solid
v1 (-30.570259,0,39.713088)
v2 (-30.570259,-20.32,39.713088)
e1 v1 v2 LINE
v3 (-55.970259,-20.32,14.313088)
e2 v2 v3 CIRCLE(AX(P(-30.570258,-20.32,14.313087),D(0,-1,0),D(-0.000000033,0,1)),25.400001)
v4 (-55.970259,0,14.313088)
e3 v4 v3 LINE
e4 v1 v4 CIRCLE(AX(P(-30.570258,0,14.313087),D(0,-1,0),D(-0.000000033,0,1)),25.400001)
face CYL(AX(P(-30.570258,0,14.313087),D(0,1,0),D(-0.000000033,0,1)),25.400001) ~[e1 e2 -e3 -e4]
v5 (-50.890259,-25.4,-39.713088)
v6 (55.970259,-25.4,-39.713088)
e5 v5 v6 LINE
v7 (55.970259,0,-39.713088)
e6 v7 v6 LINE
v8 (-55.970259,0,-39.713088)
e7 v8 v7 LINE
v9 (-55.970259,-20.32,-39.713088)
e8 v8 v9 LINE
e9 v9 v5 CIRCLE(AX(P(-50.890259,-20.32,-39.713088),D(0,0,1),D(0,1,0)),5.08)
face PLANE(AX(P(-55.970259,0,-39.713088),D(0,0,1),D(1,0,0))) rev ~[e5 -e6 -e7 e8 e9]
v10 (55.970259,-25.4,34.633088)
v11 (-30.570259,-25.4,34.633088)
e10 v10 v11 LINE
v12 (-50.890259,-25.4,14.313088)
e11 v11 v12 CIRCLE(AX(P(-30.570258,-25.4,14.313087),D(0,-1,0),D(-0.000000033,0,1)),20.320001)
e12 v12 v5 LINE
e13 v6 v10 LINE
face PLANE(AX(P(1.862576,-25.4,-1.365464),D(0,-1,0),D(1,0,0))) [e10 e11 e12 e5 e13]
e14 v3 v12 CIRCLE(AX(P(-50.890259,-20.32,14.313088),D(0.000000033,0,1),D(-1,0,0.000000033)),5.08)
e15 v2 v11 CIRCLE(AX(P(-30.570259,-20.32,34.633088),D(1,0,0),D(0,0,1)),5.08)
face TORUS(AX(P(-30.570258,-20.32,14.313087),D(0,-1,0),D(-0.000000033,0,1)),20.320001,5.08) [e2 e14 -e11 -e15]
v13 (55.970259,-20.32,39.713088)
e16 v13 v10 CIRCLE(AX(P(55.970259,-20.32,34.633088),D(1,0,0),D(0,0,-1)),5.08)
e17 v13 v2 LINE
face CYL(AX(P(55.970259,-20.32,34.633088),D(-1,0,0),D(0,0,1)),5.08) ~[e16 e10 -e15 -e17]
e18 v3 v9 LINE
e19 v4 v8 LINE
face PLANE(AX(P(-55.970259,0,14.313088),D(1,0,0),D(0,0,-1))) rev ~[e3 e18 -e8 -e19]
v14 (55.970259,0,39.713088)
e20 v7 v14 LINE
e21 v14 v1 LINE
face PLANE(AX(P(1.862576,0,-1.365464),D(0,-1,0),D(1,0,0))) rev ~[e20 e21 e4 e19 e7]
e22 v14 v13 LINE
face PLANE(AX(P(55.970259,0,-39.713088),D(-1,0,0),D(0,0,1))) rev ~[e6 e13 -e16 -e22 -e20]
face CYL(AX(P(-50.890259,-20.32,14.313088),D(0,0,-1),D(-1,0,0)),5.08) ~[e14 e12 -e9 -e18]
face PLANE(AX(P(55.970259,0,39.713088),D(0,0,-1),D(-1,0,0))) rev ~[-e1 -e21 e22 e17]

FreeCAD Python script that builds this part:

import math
import FreeCAD as App
import Part
import Sketcher

V = App.Vector
Q = App.Units.Quantity


def edges_at(feature, points):
    """Names of the edges that pass closest to the given points."""
    edges = feature.Shape.Edges
    near = lambda p: min(range(len(edges)), key=lambda i: edges[i].distToShape(Part.Vertex(*p))[0])
    return sorted({f"Edge{near(p) + 1}" for p in points})

doc = App.newDocument("Part")
body = doc.addObject("PartDesign::Body", "Body")

# Sketch on XZ plane
sketch1 = body.newObject("Sketcher::SketchObject", "Sketch")
sketch1.AttachmentSupport = (doc.getObject("XZ_Plane"), [""])
sketch1.MapMode = "FlatFace"
sketch1.addGeometry([
    Part.LineSegment(V(56, 40, 0), V(-31, 40, 0)),  # 0
    Part.ArcOfCircle(Part.Circle(V(-31, 14, 0), V(0, 0, 1), 25), math.radians(90), math.radians(180)),  # 1
    Part.LineSegment(V(-56, 14, 0), V(-56, -40, 0)),  # 2
    Part.LineSegment(V(-56, -40, 0), V(56, -40, 0)),  # 3
    Part.LineSegment(V(56, -40, 0), V(56, 40, 0)),  # 4
], False)
sketch1.addConstraint([
    Sketcher.Constraint("Tangent", 0, 2, 1, 1),
    Sketcher.Constraint("Tangent", 1, 2, 2, 1),
    Sketcher.Constraint("Coincident", 2, 2, 3, 1),
    Sketcher.Constraint("Coincident", 3, 2, 4, 1),
    Sketcher.Constraint("Coincident", 4, 2, 0, 1),
    Sketcher.Constraint("Horizontal", 0),
    Sketcher.Constraint("Vertical", 2),
    Sketcher.Constraint("Horizontal", 3),
    Sketcher.Constraint("Vertical", 4),
    Sketcher.Constraint("Symmetric", 2, 2, 4, 2, -1, 1),
    Sketcher.Constraint("Radius", 1, Q("1 in")),
    Sketcher.Constraint("DistanceX", 0, 2, 0, 1, 86.540518),
    Sketcher.Constraint("DistanceY", 2, 2, 2, 1, 54.026176),
])
pad1 = body.newObject("PartDesign::Pad", "Pad")
pad1.Profile = sketch1
pad1.Length = Q("1 in")
doc.recompute()

fillet = body.newObject("PartDesign::Fillet", "Fillet")
fillet.Base = (pad1, edges_at(pad1, [(-55.97, -25.4, -12.7)]))
fillet.Radius = Q("0.2 in")

doc.recompute()
